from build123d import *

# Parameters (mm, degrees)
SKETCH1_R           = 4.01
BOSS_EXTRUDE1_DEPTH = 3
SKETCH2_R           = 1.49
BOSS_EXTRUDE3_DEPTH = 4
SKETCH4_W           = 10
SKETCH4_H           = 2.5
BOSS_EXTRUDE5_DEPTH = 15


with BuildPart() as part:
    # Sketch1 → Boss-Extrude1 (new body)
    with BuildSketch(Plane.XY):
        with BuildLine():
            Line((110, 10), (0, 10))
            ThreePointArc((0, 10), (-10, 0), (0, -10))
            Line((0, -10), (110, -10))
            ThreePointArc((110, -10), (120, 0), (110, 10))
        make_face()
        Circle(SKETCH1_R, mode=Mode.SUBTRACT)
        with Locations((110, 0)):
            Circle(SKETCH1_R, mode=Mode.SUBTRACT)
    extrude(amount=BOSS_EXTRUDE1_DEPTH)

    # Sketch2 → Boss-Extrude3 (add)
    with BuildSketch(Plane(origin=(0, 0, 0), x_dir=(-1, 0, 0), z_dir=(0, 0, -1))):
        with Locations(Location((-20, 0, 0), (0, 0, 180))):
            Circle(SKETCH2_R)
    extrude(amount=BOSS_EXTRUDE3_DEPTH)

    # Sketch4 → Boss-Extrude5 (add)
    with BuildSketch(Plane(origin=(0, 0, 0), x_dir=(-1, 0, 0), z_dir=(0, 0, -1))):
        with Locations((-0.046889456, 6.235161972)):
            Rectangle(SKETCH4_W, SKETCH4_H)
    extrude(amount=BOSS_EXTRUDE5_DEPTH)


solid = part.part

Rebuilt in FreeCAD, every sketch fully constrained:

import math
import FreeCAD as App
import Part
import Sketcher
Q = App.Units.Quantity

doc = App.newDocument("Part")
body = doc.addObject("PartDesign::Body", "Body")

# Sketch on XY plane
sketch1 = body.newObject("Sketcher::SketchObject", "Sketch")
sketch1.AttachmentSupport = (doc.getObject("XY_Plane"), [""])
sketch1.MapMode = "FlatFace"
sketch1.addGeometry([
    Part.LineSegment(App.Vector(110, 10, 0), App.Vector(0, 10, 0)),  # 0
    Part.ArcOfCircle(Part.Circle(App.Vector(0, 0, 0), App.Vector(0, 0, 1), 10), math.radians(90), math.radians(270)),  # 1
    Part.LineSegment(App.Vector(0, -10, 0), App.Vector(110, -10, 0)),  # 2
    Part.ArcOfCircle(Part.Circle(App.Vector(110, 0, 0), App.Vector(0, 0, 1), 10), math.radians(-90), math.radians(90)),  # 3
    Part.Circle(App.Vector(0, 0, 0), App.Vector(0, 0, 1), 4),  # 4
    Part.Circle(App.Vector(110, 0, 0), App.Vector(0, 0, 1), 4),  # 5
], False)
sketch1.addConstraint([
    Sketcher.Constraint("Tangent", 0, 2, 1, 1),
    Sketcher.Constraint("Tangent", 1, 2, 2, 1),
    Sketcher.Constraint("Tangent", 2, 2, 3, 1),
    Sketcher.Constraint("Tangent", 3, 2, 0, 1),
    Sketcher.Constraint("Horizontal", 0),
    Sketcher.Constraint("Horizontal", 2),
    Sketcher.Constraint("Coincident", 1, 3, -1, 1),
    Sketcher.Constraint("Coincident", 4, 3, -1, 1),
    Sketcher.Constraint("Coincident", 5, 3, 3, 3),
    Sketcher.Constraint("Equal", 4, 5),
    Sketcher.Constraint("Radius", 1, Q("10 mm")),
    Sketcher.Constraint("Diameter", 4, Q("8.02 mm")),
    Sketcher.Constraint("DistanceX", 0, 2, 0, 1, Q("110 mm")),
])
pad1 = body.newObject("PartDesign::Pad", "Pad")
pad1.Profile = sketch1
pad1.Length = 3

# Sketch on XY plane
sketch2 = body.newObject("Sketcher::SketchObject", "Sketch001")
sketch2.AttachmentSupport = (doc.getObject("XY_Plane"), [""])
sketch2.MapMode = "FlatFace"
sketch2.addGeometry(Part.Circle(App.Vector(20, 0, 0), App.Vector(0, 0, 1), 1.5), False)
sketch2.addConstraint([
    Sketcher.Constraint("PointOnObject", 0, 3, -1),
    Sketcher.Constraint("Diameter", 0, Q("2.98 mm")),
    Sketcher.Constraint("DistanceX", -1, 1, 0, 3, Q("20 mm")),
])
pad2 = body.newObject("PartDesign::Pad", "Pad001")
pad2.Profile = sketch2
pad2.Length = 4
pad2.Reversed = True

# Sketch on XY plane
sketch3 = body.newObject("Sketcher::SketchObject", "Sketch002")
sketch3.AttachmentSupport = (doc.getObject("XY_Plane"), [""])
sketch3.MapMode = "FlatFace"
sketch3.addGeometry([
    Part.LineSegment(App.Vector(5, 7.5, 0), App.Vector(5, 5, 0)),
    Part.LineSegment(App.Vector(5, 5, 0), App.Vector(-5, 5, 0)),
    Part.LineSegment(App.Vector(-5, 5, 0), App.Vector(-5, 7.5, 0)),
    Part.LineSegment(App.Vector(-5, 7.5, 0), App.Vector(5, 7.5, 0)),
], False)
sketch3.addConstraint([
    Sketcher.Constraint("Coincident", 0, 2, 1, 1),
    Sketcher.Constraint("Coincident", 1, 2, 2, 1),
    Sketcher.Constraint("Coincident", 2, 2, 3, 1),
    Sketcher.Constraint("Coincident", 3, 2, 0, 1),
    Sketcher.Constraint("Vertical", 0),
    Sketcher.Constraint("Horizontal", 1),
    Sketcher.Constraint("Vertical", 2),
    Sketcher.Constraint("Horizontal", 3),
    Sketcher.Constraint("DistanceX", 1, 2, 1, 1, Q("10 mm")),
    Sketcher.Constraint("DistanceY", 0, 2, 0, 1, Q("2.5 mm")),
    Sketcher.Constraint("DistanceX", -1, 1, 0, 2, Q("5.046889 mm")),
    Sketcher.Constraint("DistanceY", -1, 1, 0, 2, Q("4.985162 mm")),
])
pad3 = body.newObject("PartDesign::Pad", "Pad002")
pad3.Profile = sketch3
pad3.Length = 15
pad3.Reversed = True

doc.recompute()
